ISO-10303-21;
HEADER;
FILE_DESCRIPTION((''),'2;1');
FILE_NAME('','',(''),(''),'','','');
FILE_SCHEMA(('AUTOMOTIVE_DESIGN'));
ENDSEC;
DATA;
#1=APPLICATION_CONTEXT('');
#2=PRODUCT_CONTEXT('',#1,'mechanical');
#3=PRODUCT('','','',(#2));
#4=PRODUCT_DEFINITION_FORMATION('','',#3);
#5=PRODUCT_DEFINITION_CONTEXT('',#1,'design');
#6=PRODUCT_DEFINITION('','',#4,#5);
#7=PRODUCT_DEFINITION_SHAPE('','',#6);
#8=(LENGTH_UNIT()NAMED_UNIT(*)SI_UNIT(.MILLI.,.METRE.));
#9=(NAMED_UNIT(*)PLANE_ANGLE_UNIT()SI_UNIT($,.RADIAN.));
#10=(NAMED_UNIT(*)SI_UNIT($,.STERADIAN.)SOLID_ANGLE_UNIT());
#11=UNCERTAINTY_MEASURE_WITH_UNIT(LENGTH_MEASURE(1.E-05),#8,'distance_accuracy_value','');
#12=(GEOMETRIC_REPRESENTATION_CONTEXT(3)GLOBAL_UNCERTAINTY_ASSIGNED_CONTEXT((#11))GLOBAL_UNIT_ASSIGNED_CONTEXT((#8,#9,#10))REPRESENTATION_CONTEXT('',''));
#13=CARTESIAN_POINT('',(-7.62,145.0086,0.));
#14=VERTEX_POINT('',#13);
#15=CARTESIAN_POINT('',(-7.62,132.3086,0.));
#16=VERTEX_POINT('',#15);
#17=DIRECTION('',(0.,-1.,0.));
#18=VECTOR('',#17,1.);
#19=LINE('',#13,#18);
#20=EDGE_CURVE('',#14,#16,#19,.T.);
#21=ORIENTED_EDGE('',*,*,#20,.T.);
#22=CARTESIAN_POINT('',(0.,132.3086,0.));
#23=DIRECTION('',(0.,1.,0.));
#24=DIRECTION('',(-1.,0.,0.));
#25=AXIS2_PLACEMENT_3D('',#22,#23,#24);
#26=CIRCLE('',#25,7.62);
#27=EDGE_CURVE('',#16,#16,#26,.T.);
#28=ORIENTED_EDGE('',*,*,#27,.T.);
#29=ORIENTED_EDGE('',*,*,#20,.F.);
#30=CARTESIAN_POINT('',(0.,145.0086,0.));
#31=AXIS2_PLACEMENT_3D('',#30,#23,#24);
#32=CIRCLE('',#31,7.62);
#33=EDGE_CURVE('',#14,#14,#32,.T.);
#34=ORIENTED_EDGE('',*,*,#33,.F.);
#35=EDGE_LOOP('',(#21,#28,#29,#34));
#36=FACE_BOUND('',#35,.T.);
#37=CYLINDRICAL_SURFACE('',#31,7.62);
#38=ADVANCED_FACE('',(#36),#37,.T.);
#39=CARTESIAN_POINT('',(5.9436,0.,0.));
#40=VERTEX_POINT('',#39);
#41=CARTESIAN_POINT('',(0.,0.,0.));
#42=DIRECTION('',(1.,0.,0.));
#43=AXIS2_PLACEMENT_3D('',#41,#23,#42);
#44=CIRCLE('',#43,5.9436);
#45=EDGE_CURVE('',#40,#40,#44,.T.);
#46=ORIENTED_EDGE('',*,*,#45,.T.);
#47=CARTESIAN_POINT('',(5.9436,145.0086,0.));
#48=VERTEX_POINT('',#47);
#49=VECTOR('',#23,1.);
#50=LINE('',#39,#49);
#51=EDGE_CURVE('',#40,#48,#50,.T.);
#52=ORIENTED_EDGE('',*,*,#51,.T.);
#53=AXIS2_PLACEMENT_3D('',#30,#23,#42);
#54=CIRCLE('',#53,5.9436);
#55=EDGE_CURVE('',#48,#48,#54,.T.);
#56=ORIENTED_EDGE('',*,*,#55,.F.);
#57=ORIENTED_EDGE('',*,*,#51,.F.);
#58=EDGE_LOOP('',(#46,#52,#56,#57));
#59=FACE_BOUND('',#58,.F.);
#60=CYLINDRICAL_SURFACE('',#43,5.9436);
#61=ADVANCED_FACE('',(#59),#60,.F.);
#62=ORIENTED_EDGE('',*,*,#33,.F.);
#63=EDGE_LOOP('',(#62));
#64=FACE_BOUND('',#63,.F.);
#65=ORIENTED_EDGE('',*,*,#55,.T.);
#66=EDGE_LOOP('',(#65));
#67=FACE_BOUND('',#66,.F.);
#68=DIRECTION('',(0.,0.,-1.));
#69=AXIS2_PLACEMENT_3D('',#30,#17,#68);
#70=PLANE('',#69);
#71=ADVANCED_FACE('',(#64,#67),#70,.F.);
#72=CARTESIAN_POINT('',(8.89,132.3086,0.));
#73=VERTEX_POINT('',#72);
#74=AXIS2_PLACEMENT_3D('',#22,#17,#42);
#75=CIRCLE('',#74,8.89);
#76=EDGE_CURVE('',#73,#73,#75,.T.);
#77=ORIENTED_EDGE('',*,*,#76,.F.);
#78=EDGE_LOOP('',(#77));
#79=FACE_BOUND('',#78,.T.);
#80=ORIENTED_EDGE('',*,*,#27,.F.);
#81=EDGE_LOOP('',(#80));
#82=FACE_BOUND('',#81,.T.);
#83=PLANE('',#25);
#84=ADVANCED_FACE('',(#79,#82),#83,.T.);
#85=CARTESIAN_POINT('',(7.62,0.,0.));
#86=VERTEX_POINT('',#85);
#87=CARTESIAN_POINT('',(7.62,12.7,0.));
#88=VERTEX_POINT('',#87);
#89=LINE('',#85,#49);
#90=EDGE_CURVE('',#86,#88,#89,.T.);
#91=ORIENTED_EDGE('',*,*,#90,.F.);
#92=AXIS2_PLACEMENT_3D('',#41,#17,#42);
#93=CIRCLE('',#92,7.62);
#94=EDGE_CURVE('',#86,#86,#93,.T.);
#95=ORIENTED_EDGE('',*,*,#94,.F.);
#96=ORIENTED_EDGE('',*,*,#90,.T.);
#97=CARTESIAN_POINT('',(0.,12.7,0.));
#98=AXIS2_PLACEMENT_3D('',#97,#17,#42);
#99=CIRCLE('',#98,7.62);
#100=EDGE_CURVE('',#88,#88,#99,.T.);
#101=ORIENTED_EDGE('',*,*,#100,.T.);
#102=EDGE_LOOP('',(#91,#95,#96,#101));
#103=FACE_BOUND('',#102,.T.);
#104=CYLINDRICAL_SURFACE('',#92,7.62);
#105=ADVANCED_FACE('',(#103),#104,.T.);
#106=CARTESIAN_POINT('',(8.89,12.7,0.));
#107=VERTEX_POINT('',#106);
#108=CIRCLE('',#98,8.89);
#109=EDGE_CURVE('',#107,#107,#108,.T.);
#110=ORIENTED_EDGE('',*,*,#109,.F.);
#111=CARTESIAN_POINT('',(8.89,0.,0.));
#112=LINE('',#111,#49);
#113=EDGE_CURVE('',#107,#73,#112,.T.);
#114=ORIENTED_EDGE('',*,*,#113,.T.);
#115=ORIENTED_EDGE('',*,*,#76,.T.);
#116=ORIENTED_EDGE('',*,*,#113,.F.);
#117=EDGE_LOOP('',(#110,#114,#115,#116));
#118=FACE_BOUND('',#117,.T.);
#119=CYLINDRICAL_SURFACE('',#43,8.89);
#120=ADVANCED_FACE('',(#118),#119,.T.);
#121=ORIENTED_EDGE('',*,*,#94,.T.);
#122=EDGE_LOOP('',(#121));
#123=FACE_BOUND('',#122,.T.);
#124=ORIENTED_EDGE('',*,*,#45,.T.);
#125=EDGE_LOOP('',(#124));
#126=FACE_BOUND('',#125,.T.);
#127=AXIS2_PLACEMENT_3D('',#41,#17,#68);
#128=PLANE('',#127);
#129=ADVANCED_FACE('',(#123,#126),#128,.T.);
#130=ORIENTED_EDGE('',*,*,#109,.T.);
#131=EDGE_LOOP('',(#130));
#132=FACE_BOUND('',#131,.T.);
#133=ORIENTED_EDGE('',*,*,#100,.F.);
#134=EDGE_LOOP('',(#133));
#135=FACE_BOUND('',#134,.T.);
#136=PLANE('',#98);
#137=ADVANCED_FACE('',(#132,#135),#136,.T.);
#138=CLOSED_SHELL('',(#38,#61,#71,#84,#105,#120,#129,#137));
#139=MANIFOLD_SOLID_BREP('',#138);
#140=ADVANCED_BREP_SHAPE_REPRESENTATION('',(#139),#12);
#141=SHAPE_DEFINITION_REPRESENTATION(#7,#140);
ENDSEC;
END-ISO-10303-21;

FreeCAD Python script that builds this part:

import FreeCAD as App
import Part
import Sketcher
Q = App.Units.Quantity

doc = App.newDocument("Part")
body = doc.addObject("PartDesign::Body", "Body")

# Sketch on XZ plane
sketch1 = body.newObject("Sketcher::SketchObject", "Sketch")
sketch1.AttachmentSupport = (doc.getObject("XZ_Plane"), [""])
sketch1.MapMode = "FlatFace"
sketch1.addGeometry(Part.Circle(App.Vector(0, 0, 0), App.Vector(0, 0, 1), 8.89), False)
sketch1.addGeometry(Part.Circle(App.Vector(0, 0, 0), App.Vector(0, 0, 1), 5.9436), False)
sketch1.addConstraint(Sketcher.Constraint("Coincident", 0, 3, -1, 1))
sketch1.addConstraint(Sketcher.Constraint("Coincident", 1, 3, -1, 1))
sketch1.addConstraint(Sketcher.Constraint("Diameter", 0, Q("0.7 in")))
sketch1.addConstraint(Sketcher.Constraint("Diameter", 1, Q("0.468 in")))

# Sketch on XY plane
sketch2 = body.newObject("Sketcher::SketchObject", "Sketch001")
sketch2.AttachmentSupport = (doc.getObject("XY_Plane"), [""])
sketch2.MapMode = "FlatFace"
sketch2.addGeometry(Part.LineSegment(App.Vector(0, 0, 0), App.Vector(0, 145.0086, 0)), False)
sketch2.addConstraint(Sketcher.Constraint("Vertical", 0))
sketch2.addConstraint(Sketcher.Constraint("Coincident", 0, 1, -1, 1))
sketch2.addConstraint(Sketcher.Constraint("DistanceY", 0, 1, 0, 2, Q("5.709 in")))
doc.recompute()

additivepipe = body.newObject("PartDesign::AdditivePipe", "AdditivePipe")
additivepipe.Profile = sketch1
additivepipe.Spine = (sketch2, ["Edge1"])

# Sketch on XZ plane
sketch3 = body.newObject("Sketcher::SketchObject", "Sketch002")
sketch3.AttachmentSupport = (doc.getObject("XZ_Plane"), [""])
sketch3.MapMode = "FlatFace"
sketch3.AttachmentOffset = App.Placement(App.Vector(0, 0, -5.709 * 25.4), App.Rotation())
sketch3.addGeometry(Part.Circle(App.Vector(0, 0, 0), App.Vector(0, 0, 1), 8.89), False)
sketch3.addGeometry(Part.Circle(App.Vector(0, 0, 0), App.Vector(0, 0, 1), 7.62), False)
sketch3.addConstraint(Sketcher.Constraint("Coincident", 0, 3, -1, 1))
sketch3.addConstraint(Sketcher.Constraint("Coincident", 1, 3, -1, 1))
sketch3.addConstraint(Sketcher.Constraint("Diameter", 0, Q("0.7 in")))
sketch3.addConstraint(Sketcher.Constraint("Diameter", 1, Q("0.6 in")))
pocket1 = body.newObject("PartDesign::Pocket", "Pocket")
pocket1.Profile = sketch3
pocket1.Length = Q("0.5 in")
pocket1.Reversed = True

# Sketch on XZ plane
sketch4 = body.newObject("Sketcher::SketchObject", "Sketch003")
sketch4.AttachmentSupport = (doc.getObject("XZ_Plane"), [""])
sketch4.MapMode = "FlatFace"
sketch4.addGeometry(Part.Circle(App.Vector(0, 0, 0), App.Vector(0, 0, 1), 8.89), False)
sketch4.addGeometry(Part.Circle(App.Vector(0, 0, 0), App.Vector(0, 0, 1), 7.62), False)
sketch4.addConstraint(Sketcher.Constraint("Coincident", 0, 3, -1, 1))
sketch4.addConstraint(Sketcher.Constraint("Coincident", 1, 3, -1, 1))
sketch4.addConstraint(Sketcher.Constraint("Diameter", 0, Q("0.7 in")))
sketch4.addConstraint(Sketcher.Constraint("Diameter", 1, Q("0.6 in")))
pocket2 = body.newObject("PartDesign::Pocket", "Pocket001")
pocket2.Profile = sketch4
pocket2.Length = Q("0.5 in")

doc.recompute()
